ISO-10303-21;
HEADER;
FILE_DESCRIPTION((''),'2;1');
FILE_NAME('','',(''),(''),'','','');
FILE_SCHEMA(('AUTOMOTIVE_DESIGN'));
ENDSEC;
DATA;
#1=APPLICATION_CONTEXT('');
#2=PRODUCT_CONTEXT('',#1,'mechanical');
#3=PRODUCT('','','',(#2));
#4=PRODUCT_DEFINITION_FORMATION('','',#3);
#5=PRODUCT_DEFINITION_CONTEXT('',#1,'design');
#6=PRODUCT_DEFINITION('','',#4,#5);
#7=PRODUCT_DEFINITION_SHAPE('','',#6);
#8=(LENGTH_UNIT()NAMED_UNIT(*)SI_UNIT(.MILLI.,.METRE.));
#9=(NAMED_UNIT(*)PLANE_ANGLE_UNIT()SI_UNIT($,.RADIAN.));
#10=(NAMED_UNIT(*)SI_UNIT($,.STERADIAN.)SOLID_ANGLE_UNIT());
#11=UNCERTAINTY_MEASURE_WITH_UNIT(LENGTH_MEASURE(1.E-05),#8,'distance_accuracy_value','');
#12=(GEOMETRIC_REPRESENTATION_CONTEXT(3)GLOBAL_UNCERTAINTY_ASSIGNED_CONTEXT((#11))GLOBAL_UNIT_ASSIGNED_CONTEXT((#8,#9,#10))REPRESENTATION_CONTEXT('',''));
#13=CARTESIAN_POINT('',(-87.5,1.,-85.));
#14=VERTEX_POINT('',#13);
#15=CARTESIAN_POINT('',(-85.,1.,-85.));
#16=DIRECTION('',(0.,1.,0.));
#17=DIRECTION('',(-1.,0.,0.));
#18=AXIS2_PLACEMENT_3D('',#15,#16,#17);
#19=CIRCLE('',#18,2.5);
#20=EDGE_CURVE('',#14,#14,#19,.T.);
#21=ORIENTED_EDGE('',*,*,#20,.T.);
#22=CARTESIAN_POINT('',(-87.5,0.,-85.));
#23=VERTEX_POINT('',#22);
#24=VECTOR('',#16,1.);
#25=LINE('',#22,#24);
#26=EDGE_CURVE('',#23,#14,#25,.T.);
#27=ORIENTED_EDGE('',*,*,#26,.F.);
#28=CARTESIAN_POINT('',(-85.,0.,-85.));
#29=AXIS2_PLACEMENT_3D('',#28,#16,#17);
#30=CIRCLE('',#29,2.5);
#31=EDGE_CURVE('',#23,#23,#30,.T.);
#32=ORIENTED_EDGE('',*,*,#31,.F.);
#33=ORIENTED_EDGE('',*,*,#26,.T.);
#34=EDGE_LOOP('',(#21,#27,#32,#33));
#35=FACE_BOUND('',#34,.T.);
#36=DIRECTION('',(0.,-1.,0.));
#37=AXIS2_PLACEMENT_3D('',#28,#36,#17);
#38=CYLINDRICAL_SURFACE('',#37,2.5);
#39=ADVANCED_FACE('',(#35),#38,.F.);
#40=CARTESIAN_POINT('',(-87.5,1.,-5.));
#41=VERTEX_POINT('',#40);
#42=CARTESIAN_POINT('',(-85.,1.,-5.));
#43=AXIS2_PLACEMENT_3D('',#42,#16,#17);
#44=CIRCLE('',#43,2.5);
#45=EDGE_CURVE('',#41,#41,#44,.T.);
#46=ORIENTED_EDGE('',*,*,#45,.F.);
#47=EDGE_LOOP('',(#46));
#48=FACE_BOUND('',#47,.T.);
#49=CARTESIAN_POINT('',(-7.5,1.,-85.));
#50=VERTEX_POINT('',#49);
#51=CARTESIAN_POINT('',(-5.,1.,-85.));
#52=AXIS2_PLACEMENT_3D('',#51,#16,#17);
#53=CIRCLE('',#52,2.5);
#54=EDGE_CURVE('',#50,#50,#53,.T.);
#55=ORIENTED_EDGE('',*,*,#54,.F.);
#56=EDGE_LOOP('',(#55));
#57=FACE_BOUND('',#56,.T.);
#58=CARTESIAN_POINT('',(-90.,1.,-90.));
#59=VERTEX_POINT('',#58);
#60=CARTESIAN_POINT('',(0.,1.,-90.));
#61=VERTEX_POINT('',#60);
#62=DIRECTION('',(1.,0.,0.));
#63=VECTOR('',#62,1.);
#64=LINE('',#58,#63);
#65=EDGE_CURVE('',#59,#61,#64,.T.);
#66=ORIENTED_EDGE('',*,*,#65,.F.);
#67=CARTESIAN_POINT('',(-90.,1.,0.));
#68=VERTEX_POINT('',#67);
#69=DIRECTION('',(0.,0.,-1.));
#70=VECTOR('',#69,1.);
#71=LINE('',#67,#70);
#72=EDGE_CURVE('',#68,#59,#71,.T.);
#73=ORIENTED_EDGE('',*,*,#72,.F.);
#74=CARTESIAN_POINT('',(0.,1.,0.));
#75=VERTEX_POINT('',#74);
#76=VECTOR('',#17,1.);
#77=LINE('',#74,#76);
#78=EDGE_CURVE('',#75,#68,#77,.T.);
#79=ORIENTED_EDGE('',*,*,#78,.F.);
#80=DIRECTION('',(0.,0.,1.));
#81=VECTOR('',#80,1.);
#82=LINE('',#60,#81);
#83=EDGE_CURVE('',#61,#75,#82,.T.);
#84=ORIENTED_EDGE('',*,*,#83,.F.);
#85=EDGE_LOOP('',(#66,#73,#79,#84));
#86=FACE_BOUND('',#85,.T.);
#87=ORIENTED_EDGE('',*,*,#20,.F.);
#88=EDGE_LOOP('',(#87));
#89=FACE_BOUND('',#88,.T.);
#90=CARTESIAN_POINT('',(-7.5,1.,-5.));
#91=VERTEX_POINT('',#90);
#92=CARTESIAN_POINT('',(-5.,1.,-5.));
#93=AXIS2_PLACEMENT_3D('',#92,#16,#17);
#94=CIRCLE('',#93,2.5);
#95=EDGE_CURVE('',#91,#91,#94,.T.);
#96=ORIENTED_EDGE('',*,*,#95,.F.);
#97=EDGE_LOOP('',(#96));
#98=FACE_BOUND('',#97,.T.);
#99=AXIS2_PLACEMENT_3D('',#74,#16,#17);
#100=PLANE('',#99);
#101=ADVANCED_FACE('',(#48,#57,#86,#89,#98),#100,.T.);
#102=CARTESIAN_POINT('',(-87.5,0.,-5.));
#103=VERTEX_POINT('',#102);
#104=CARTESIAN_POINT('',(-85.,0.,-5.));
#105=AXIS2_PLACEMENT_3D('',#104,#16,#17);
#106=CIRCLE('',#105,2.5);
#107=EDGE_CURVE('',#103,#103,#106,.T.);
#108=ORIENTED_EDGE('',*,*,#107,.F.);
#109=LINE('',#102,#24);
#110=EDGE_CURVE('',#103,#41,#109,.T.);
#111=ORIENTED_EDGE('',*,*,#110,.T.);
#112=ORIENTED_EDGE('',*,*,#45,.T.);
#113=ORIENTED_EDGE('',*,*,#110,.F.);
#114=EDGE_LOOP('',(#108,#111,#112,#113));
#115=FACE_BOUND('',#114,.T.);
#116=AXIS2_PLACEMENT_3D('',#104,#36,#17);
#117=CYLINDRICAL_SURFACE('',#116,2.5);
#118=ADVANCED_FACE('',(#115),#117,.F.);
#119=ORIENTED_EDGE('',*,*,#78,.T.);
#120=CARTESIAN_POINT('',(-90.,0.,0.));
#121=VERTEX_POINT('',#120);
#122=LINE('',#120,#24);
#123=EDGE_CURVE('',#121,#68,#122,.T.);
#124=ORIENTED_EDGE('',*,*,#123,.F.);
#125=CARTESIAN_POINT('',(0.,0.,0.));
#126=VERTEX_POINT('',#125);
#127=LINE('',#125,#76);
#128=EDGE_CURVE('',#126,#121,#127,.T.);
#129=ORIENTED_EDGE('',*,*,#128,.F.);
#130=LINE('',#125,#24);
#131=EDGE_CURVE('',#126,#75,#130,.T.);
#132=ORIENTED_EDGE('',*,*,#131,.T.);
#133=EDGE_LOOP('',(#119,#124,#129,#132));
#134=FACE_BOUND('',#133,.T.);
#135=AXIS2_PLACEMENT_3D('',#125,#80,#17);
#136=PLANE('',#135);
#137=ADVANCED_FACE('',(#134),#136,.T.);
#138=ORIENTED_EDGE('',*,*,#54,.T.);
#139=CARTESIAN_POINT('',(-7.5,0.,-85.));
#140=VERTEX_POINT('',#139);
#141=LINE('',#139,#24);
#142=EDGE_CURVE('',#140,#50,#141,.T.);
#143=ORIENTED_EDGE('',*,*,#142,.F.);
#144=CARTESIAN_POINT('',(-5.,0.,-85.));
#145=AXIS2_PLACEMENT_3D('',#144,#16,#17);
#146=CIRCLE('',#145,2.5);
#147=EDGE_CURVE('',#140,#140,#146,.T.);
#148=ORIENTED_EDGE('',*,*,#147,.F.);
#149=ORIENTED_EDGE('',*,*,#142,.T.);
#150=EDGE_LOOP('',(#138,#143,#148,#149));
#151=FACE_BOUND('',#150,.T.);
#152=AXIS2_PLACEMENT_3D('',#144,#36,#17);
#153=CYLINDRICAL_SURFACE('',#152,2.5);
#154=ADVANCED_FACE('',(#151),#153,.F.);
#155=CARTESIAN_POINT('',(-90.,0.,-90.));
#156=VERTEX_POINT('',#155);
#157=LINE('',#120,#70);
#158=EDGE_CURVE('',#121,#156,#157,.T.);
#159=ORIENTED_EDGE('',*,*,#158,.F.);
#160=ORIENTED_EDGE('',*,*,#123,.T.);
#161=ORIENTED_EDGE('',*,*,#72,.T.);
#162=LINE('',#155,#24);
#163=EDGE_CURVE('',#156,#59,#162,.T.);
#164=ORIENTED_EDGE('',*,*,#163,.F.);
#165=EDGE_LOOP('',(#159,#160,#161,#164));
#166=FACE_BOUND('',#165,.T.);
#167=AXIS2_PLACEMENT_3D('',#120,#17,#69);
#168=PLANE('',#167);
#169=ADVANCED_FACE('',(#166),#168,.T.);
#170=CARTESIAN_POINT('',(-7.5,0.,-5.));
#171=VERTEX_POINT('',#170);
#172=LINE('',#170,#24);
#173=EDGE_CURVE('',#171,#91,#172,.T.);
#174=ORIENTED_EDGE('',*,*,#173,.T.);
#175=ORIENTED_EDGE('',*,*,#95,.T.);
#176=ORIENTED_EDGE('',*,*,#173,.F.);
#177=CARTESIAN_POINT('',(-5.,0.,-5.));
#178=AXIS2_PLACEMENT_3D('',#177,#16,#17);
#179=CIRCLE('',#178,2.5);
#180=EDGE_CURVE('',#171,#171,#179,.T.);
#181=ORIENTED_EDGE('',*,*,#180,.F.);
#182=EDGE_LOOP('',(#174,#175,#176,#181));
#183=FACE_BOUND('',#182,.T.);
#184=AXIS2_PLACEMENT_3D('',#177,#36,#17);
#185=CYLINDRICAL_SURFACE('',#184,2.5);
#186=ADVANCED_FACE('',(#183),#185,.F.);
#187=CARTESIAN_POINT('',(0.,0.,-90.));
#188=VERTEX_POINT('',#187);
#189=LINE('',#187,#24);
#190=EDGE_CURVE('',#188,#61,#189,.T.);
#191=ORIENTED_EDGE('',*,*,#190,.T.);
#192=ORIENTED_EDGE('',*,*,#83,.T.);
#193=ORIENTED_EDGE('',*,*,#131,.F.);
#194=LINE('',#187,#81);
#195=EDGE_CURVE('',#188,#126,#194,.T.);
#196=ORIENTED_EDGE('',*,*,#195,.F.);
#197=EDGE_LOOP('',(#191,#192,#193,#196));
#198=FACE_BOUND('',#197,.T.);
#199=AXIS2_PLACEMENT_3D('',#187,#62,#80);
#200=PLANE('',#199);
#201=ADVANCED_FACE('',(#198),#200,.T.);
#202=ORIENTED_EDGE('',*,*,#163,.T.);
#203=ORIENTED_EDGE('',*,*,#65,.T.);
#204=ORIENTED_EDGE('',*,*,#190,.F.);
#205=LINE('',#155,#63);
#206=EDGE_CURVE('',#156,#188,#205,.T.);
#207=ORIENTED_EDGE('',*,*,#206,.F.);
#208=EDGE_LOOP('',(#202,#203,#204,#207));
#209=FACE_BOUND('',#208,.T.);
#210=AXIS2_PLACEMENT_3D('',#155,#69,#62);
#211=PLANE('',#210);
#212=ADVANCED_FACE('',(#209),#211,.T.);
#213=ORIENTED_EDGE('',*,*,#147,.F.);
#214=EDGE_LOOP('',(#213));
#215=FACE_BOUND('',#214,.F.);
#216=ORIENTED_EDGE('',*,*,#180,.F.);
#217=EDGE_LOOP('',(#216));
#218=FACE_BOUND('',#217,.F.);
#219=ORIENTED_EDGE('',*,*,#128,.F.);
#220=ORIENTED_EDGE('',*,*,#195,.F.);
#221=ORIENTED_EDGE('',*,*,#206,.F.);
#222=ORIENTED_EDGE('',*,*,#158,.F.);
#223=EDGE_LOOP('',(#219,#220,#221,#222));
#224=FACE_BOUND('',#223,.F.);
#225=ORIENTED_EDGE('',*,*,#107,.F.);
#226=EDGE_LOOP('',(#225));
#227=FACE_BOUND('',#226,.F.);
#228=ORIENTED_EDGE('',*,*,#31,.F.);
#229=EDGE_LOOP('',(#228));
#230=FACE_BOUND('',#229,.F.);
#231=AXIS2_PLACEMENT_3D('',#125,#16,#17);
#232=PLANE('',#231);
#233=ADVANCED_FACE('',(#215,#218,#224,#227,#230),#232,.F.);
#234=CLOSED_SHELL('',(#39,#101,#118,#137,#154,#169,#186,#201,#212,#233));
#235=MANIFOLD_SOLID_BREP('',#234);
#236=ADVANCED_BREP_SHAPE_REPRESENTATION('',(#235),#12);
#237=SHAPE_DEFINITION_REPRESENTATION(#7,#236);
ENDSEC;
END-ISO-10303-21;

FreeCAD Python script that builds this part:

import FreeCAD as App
import Part
import Sketcher
Q = App.Units.Quantity


def add_polygon(sketch, points):
    """Adds a closed chain of lines whose ends are joined by coincident constraints."""
    first, n = sketch.GeometryCount, len(points)
    for a, b in zip(points, points[1:] + points[:1]):
        sketch.addGeometry(Part.LineSegment(App.Vector(*a, 0), App.Vector(*b, 0)), False)
    for i in range(n):
        sketch.addConstraint(Sketcher.Constraint("Coincident", first + i, 2, first + (i + 1) % n, 1))

doc = App.newDocument("Part")
body = doc.addObject("PartDesign::Body", "Body")

# Sketch on XZ plane
sketch1 = doc.addObject("Sketcher::SketchObject", "Sketch")
body.addObject(sketch1)
sketch1.AttachmentSupport = (doc.XZ_Plane, [""])
sketch1.MapMode = "FlatFace"
add_polygon(sketch1, [(-90, 0), (0, 0), (0, -90), (-90, -90)])  # lines 0-3
sketch1.addGeometry(Part.Circle(App.Vector(-5, -85, 0), App.Vector(0, 0, 1), 2.5), False)  # 4
sketch1.addGeometry(Part.Circle(App.Vector(-85, -85, 0), App.Vector(0, 0, 1), 2.5), False)  # 5
sketch1.addGeometry(Part.Circle(App.Vector(-5, -5, 0), App.Vector(0, 0, 1), 2.5), False)  # 6
sketch1.addGeometry(Part.Circle(App.Vector(-85, -5, 0), App.Vector(0, 0, 1), 2.5), False)  # 7
sketch1.addConstraint(Sketcher.Constraint("Horizontal", 0))
sketch1.addConstraint(Sketcher.Constraint("Vertical", 1))
sketch1.addConstraint(Sketcher.Constraint("Horizontal", 2))
sketch1.addConstraint(Sketcher.Constraint("Vertical", 3))
sketch1.addConstraint(Sketcher.Constraint("Coincident", 0, 2, -1, 1))
sketch1.addConstraint(Sketcher.Constraint("Equal", 4, 5))
sketch1.addConstraint(Sketcher.Constraint("Equal", 5, 6))
sketch1.addConstraint(Sketcher.Constraint("Equal", 6, 7))
sketch1.addConstraint(Sketcher.Constraint("Horizontal", 4, 3, 5, 3))
sketch1.addConstraint(Sketcher.Constraint("Horizontal", 6, 3, 7, 3))
sketch1.addConstraint(Sketcher.Constraint("Vertical", 4, 3, 6, 3))
sketch1.addConstraint(Sketcher.Constraint("Vertical", 5, 3, 7, 3))
sketch1.addConstraint(Sketcher.Constraint("Equal", 2, 1))
sketch1.addConstraint(Sketcher.Constraint("Diameter", 4, Q("5 mm")))
sketch1.addConstraint(Sketcher.Constraint("DistanceX", 0, 1, 0, 2, Q("90 mm")))
sketch1.addConstraint(Sketcher.Constraint("DistanceX", 4, 3, -1, 1, Q("5 mm")))
sketch1.addConstraint(Sketcher.Constraint("DistanceY", 6, 3, -1, 1, Q("5 mm")))
sketch1.addConstraint(Sketcher.Constraint("DistanceX", 5, 3, 4, 3, Q("80 mm")))
sketch1.addConstraint(Sketcher.Constraint("DistanceY", 4, 3, 6, 3, Q("80 mm")))
pad1 = doc.addObject("PartDesign::Pad", "Pad")
body.addObject(pad1)
pad1.Profile = sketch1
pad1.Length = 1
pad1.Reversed = True

doc.recompute()
